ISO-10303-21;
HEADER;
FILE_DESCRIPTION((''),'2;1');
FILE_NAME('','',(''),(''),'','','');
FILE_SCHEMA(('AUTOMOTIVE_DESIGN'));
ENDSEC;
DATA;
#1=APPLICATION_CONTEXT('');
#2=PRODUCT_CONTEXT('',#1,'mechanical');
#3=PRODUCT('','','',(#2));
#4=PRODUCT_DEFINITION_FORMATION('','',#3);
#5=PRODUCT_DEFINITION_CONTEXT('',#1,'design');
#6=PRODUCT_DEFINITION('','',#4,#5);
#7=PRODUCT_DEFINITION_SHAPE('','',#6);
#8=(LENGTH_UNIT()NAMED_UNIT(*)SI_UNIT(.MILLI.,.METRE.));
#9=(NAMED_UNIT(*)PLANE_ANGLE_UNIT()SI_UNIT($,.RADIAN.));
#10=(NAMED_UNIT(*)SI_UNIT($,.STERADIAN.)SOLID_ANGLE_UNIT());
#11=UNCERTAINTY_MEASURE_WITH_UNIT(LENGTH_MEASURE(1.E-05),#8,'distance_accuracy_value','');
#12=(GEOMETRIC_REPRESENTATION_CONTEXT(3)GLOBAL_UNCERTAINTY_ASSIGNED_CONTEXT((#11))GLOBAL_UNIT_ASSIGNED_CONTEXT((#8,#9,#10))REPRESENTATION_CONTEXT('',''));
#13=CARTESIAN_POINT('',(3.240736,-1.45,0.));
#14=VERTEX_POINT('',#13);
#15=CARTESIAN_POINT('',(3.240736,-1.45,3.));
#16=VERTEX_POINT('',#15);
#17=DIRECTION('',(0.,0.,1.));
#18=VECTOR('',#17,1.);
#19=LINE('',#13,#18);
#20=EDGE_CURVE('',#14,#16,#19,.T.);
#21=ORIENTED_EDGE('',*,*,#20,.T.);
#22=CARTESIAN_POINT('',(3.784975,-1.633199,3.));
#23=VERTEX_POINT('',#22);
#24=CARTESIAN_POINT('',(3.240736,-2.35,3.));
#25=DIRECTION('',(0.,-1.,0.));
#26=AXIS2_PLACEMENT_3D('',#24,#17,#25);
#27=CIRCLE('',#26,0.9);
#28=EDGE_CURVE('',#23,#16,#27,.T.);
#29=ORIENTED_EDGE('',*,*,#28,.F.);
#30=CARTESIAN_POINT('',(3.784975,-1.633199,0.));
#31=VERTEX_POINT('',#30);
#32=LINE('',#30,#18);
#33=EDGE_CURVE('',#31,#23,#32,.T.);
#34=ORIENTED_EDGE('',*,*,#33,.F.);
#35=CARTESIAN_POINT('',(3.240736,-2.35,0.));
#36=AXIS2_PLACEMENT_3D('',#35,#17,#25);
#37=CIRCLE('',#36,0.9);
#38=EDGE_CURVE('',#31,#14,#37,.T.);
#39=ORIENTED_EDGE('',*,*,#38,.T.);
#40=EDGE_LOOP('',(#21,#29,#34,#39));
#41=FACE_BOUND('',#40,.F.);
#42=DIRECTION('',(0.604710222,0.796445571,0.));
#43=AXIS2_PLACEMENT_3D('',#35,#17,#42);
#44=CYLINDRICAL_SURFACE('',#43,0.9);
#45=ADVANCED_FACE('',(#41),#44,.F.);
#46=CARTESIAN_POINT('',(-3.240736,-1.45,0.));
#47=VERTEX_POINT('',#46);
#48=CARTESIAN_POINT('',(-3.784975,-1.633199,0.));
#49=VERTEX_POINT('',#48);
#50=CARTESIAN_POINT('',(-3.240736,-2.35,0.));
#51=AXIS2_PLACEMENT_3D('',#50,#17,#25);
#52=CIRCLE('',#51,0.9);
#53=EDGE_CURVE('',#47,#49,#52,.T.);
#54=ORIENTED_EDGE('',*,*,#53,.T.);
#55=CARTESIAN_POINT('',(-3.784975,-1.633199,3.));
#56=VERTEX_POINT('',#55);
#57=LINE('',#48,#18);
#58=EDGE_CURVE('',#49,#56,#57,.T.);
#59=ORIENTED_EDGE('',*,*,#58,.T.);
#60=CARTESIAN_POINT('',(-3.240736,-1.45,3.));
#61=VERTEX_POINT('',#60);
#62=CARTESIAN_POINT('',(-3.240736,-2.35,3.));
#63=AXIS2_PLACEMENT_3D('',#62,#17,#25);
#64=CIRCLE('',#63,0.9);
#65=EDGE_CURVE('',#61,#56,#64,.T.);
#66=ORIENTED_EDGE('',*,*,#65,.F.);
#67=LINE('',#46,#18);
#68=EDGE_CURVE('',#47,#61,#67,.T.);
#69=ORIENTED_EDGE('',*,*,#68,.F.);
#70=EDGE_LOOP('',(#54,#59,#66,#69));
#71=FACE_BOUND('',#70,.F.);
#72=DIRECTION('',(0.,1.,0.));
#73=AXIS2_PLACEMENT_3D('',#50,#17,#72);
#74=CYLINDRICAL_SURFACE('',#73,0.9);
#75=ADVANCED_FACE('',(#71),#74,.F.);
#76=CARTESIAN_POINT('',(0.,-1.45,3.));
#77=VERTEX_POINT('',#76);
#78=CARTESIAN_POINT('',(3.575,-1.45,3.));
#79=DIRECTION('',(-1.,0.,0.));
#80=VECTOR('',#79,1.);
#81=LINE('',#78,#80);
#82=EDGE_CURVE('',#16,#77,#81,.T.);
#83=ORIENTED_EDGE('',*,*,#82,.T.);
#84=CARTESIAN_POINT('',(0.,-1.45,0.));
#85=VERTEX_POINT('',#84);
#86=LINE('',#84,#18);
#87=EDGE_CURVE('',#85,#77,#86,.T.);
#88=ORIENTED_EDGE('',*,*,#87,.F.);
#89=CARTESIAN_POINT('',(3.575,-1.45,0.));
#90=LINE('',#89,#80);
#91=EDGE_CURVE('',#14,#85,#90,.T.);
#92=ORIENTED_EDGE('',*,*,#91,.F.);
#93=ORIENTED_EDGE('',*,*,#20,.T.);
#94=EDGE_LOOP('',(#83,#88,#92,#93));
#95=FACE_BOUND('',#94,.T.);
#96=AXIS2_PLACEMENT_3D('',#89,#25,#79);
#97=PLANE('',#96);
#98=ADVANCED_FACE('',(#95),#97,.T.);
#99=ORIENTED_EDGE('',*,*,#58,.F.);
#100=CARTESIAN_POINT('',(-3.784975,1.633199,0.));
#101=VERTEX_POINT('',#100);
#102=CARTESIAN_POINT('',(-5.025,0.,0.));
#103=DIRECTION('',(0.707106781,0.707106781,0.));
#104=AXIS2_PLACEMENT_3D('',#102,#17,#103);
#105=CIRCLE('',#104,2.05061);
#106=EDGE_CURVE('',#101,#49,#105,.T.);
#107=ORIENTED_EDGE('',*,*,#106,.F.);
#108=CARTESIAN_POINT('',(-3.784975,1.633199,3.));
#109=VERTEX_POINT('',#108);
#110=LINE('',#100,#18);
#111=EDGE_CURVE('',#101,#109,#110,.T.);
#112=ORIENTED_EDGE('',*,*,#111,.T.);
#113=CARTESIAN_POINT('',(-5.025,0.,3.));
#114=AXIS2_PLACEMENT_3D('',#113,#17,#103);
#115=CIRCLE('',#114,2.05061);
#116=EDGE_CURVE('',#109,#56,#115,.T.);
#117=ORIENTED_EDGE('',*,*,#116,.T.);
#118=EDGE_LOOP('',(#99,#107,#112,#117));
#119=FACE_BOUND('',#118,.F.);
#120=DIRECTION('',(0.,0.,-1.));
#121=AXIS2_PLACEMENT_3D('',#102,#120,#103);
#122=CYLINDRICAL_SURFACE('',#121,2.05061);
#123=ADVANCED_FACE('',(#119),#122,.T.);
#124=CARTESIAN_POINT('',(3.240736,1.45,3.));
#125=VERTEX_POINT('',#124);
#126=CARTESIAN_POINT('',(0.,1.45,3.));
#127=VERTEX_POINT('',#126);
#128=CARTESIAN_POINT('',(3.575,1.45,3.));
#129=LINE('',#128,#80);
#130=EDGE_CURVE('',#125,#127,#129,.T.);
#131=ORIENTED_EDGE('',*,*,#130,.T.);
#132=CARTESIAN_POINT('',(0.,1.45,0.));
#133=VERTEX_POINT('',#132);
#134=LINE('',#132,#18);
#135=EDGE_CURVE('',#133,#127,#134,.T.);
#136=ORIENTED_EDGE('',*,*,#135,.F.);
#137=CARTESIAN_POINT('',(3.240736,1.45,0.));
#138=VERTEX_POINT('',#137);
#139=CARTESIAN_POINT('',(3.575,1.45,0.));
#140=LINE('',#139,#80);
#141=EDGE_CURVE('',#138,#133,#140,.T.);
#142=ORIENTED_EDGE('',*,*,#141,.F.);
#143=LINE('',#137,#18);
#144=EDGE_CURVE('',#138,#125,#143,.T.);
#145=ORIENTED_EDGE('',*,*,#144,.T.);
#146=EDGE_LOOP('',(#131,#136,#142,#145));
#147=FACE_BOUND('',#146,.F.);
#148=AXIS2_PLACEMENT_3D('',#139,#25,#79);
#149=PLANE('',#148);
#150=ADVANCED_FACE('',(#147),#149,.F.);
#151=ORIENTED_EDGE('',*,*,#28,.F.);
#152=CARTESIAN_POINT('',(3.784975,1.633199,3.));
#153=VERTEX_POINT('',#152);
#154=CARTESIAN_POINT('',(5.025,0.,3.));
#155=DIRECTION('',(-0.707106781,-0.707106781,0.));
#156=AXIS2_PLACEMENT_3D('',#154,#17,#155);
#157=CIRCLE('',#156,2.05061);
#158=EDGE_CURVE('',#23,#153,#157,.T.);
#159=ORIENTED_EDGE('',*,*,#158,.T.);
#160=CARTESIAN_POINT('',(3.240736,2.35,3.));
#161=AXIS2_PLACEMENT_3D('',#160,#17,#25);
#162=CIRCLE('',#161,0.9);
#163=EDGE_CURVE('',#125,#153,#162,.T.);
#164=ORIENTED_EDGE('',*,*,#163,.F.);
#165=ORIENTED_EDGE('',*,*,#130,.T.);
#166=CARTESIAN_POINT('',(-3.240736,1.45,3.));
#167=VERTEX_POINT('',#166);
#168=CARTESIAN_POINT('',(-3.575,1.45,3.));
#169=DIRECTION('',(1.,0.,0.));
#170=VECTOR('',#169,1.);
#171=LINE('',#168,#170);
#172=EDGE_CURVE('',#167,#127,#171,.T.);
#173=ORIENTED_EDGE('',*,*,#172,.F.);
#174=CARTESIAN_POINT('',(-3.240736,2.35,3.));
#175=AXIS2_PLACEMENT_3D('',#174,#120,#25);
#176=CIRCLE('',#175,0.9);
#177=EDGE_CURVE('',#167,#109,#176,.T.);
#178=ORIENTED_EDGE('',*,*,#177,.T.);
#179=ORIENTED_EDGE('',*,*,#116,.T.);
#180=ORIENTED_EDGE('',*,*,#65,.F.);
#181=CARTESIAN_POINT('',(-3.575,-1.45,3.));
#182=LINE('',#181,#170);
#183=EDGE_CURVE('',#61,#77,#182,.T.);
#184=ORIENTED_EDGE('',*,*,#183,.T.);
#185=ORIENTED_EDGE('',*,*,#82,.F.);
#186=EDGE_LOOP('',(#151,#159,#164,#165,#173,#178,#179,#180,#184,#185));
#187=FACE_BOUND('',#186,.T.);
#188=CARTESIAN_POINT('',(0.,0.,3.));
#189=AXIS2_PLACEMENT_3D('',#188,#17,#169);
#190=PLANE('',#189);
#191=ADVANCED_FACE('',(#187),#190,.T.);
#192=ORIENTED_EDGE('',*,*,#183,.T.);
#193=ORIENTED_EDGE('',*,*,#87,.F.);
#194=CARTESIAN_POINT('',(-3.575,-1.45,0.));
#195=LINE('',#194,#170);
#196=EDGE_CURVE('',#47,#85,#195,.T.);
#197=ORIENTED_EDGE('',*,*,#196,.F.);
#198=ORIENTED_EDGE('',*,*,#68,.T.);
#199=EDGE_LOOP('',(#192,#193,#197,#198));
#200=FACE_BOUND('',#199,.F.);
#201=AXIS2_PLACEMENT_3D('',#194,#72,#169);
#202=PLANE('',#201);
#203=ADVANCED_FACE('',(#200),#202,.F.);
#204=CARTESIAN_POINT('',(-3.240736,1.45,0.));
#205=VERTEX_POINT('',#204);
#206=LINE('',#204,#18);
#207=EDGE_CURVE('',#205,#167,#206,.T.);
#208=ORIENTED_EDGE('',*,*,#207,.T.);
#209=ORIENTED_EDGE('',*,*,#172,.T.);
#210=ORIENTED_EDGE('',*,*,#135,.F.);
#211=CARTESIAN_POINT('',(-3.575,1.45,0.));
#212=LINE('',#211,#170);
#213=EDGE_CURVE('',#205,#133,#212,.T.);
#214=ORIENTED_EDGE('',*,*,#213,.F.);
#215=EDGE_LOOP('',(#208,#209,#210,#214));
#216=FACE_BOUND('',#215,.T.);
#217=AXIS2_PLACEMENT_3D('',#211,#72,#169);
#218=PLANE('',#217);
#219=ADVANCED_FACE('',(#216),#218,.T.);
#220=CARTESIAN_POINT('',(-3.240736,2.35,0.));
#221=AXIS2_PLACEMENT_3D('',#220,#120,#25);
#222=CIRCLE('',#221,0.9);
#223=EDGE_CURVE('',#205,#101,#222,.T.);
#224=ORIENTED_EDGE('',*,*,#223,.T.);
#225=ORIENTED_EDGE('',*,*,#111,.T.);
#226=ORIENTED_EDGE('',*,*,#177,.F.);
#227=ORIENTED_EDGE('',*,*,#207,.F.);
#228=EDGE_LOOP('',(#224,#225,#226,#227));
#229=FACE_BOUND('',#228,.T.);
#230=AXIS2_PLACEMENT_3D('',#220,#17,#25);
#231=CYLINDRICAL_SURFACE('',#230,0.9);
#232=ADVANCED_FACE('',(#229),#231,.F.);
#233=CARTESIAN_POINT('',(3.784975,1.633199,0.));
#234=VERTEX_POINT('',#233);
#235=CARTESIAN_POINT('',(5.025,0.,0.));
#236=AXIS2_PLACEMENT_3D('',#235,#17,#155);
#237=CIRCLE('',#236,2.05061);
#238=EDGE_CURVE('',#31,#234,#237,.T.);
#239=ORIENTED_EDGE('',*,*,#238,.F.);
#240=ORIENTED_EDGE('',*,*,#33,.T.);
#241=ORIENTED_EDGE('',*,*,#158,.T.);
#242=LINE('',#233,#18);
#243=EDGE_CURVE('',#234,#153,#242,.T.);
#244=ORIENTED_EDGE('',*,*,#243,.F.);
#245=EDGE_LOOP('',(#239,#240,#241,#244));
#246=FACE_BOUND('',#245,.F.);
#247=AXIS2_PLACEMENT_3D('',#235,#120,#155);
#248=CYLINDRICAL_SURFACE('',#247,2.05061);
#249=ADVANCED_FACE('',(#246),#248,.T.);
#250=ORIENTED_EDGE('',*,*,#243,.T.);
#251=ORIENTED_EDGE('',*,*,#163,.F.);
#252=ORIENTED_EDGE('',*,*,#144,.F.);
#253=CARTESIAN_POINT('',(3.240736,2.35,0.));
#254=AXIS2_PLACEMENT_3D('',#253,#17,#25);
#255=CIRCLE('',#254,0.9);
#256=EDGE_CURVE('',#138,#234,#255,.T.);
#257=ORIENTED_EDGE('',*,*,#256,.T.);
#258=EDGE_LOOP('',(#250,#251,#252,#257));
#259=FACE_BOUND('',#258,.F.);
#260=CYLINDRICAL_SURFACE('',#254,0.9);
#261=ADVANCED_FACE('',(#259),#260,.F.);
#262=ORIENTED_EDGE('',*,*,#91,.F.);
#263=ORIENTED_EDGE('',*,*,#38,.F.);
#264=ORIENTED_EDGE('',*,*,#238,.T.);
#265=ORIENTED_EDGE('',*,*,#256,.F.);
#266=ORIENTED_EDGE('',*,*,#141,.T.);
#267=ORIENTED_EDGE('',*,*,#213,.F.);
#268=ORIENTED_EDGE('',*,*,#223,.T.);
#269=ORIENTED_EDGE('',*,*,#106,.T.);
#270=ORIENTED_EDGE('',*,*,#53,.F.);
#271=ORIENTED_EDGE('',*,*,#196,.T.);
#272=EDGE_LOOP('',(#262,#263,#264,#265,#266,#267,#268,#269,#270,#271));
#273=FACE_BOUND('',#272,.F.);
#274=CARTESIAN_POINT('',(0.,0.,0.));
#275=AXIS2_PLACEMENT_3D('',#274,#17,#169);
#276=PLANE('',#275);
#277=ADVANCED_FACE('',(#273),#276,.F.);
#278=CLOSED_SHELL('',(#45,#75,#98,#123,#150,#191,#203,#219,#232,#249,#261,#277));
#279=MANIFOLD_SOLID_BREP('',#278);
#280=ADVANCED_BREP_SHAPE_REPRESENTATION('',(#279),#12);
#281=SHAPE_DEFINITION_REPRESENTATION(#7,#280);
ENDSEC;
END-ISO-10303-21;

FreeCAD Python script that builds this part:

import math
import FreeCAD as App
import Part
import Sketcher


def edges_at(feature, points):
    """Names of the edges that pass closest to the given points."""
    edges = feature.Shape.Edges
    near = lambda p: min(range(len(edges)), key=lambda i: edges[i].distToShape(Part.Vertex(*p))[0])
    return sorted({f"Edge{near(p) + 1}" for p in points})

doc = App.newDocument("Part")
body = doc.addObject("PartDesign::Body", "Body")

# Sketch on XY plane
sketch1 = body.newObject("Sketcher::SketchObject", "Sketch")
sketch1.AttachmentSupport = (doc.getObject("XY_Plane"), [""])
sketch1.MapMode = "FlatFace"
sketch1.addGeometry([
    Part.LineSegment(App.Vector(3.575, 1.45, 0), App.Vector(-3.575, 1.45, 0)),
    Part.ArcOfCircle(Part.Circle(App.Vector(-5.025, 0, 0), App.Vector(0, 0, 1), 2.05061), math.radians(45), math.radians(315)),
    Part.LineSegment(App.Vector(-3.575, -1.45, 0), App.Vector(3.575, -1.45, 0)),
    Part.ArcOfCircle(Part.Circle(App.Vector(5.025, 0, 0), App.Vector(0, 0, 1), 2.05061), math.radians(-135), math.radians(135)),
], False)
sketch1.addConstraint([
    Sketcher.Constraint("Coincident", 0, 2, 1, 1),
    Sketcher.Constraint("Coincident", 1, 2, 2, 1),
    Sketcher.Constraint("Coincident", 2, 2, 3, 1),
    Sketcher.Constraint("Coincident", 3, 2, 0, 1),
    Sketcher.Constraint("Horizontal", 0),
    Sketcher.Constraint("Horizontal", 2),
    Sketcher.Constraint("Equal", 1, 3),
    Sketcher.Constraint("Symmetric", 1, 3, 3, 3, -1, 1),
    Sketcher.Constraint("Symmetric", 0, 2, 1, 2, -1),
    Sketcher.Constraint("DistanceY", 1, 2, 0, 2, 2.9),
    Sketcher.Constraint("DistanceX", 1, 3, -1, 1, 5.025),
    Sketcher.Constraint("DistanceX", 0, 2, 0, 1, 7.15),
])
pad1 = body.newObject("PartDesign::Pad", "Pad")
pad1.Profile = sketch1
pad1.Length = 3
doc.recompute()

fillet = body.newObject("PartDesign::Fillet", "Fillet")
fillet.Base = (pad1, edges_at(pad1, [
    (-3.575, -1.45, 1.5),
    (3.575, -1.45, 1.5),
    (3.575, 1.45, 1.5),
    (-3.575, 1.45, 1.5),
]))
fillet.Radius = 0.9

doc.recompute()
